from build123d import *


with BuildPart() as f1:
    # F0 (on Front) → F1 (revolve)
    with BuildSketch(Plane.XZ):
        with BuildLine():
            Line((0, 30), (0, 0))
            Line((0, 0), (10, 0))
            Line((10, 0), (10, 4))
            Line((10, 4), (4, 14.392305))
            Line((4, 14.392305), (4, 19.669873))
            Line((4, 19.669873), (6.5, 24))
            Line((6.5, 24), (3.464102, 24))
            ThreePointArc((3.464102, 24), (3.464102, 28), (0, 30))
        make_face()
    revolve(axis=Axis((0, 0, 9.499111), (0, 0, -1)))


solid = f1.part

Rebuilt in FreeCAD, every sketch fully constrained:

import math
import FreeCAD as App
import Part
import Sketcher

V = App.Vector
Q = App.Units.Quantity

doc = App.newDocument("Part")
body = doc.addObject("PartDesign::Body", "Body")

# Sketch on XZ plane
sketch1 = body.newObject("Sketcher::SketchObject", "Sketch")
sketch1.AttachmentSupport = (doc.getObject("XZ_Plane"), [""])
sketch1.MapMode = "FlatFace"
sketch1.addGeometry(Part.LineSegment(V(0, 30, 0), V(0, 0, 0)), False)
sketch1.addGeometry(Part.LineSegment(V(0, 0, 0), V(10, 0, 0)), False)
sketch1.addGeometry(Part.LineSegment(V(10, 0, 0), V(10, 4, 0)), False)
sketch1.addGeometry(Part.LineSegment(V(10, 4, 0), V(4, 14.4, 0)), False)
sketch1.addGeometry(Part.LineSegment(V(4, 14.4, 0), V(4, 19.7, 0)), False)
sketch1.addGeometry(Part.LineSegment(V(4, 19.7, 0), V(6.5, 24, 0)), False)
sketch1.addGeometry(Part.LineSegment(V(6.5, 24, 0), V(3.5, 24, 0)), False)
sketch1.addGeometry(Part.ArcOfCircle(Part.Circle(V(0, 26, 0), V(0, 0, 1), 4), math.radians(-30), math.radians(90)), False)
sketch1.addConstraint(Sketcher.Constraint("Coincident", 0, 2, 1, 1))
sketch1.addConstraint(Sketcher.Constraint("Coincident", 1, 2, 2, 1))
sketch1.addConstraint(Sketcher.Constraint("Coincident", 2, 2, 3, 1))
sketch1.addConstraint(Sketcher.Constraint("Coincident", 3, 2, 4, 1))
sketch1.addConstraint(Sketcher.Constraint("Coincident", 4, 2, 5, 1))
sketch1.addConstraint(Sketcher.Constraint("Coincident", 5, 2, 6, 1))
sketch1.addConstraint(Sketcher.Constraint("Coincident", 6, 2, 7, 1))
sketch1.addConstraint(Sketcher.Constraint("Coincident", 7, 2, 0, 1))
sketch1.addConstraint(Sketcher.Constraint("Vertical", 0))
sketch1.addConstraint(Sketcher.Constraint("Horizontal", 1))
sketch1.addConstraint(Sketcher.Constraint("Vertical", 2))
sketch1.addConstraint(Sketcher.Constraint("Vertical", 4))
sketch1.addConstraint(Sketcher.Constraint("Horizontal", 6))
sketch1.addConstraint(Sketcher.Constraint("Coincident", 0, 2, -1, 1))
sketch1.addConstraint(Sketcher.Constraint("PointOnObject", 7, 3, -2))
sketch1.addConstraint(Sketcher.Constraint("Radius", 7, 4.0))
sketch1.addConstraint(Sketcher.Constraint("DistanceX", 1, 1, 1, 2, 10.0))
sketch1.addConstraint(Sketcher.Constraint("DistanceY", 0, 2, 0, 1, 30.0))
sketch1.addConstraint(Sketcher.Constraint("DistanceY", 2, 1, 2, 2, 4.0))
sketch1.addConstraint(Sketcher.Constraint("Angle", 3, Q("120 deg")))
sketch1.addConstraint(Sketcher.Constraint("Angle", 5, Q("60 deg")))
sketch1.addConstraint(Sketcher.Constraint("Distance", 3, 12.0))
sketch1.addConstraint(Sketcher.Constraint("Distance", 5, 5.0))
sketch1.addConstraint(Sketcher.Constraint("DistanceY", -1, 1, 5, 2, 24.0))
revolution = body.newObject("PartDesign::Revolution", "Revolution")
revolution.Profile = sketch1
revolution.ReferenceAxis = (sketch1, ["V_Axis"])
revolution.Angle = 360

doc.recompute()
